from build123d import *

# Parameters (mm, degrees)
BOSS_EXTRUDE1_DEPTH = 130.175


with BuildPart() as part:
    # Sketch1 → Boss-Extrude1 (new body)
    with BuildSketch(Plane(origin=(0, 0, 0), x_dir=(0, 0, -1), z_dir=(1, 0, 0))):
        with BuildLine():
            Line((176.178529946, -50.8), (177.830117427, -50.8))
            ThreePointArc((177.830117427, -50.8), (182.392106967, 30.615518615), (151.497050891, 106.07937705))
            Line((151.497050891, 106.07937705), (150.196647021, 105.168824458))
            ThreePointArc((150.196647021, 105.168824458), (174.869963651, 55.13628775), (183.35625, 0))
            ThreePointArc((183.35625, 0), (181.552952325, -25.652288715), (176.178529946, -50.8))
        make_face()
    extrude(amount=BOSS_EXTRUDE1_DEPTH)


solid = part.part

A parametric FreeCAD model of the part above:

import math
import FreeCAD as App
import Part
import Sketcher

V = App.Vector
Q = App.Units.Quantity

doc = App.newDocument("Part")
params = doc.addObject("Spreadsheet::Sheet", "Params")
for row, (alias, value) in enumerate([
    ("sketch1_radius", "7.28125 in"),
    ("sketch1_radius2", "7.21875 in"),
    ("pad1_length", "5.125 in"),
], start=1):
    params.set(f"A{row}", alias)
    params.set(f"B{row}", "=" + value)
    params.setAlias(f"B{row}", alias)

body = doc.addObject("PartDesign::Body", "Body")

sketch1 = body.newObject("Sketcher::SketchObject", "Sketch")
sketch1.AttachmentSupport = (doc.getObject("YZ_Plane"), [""])
sketch1.MapMode = "FlatFace"
sketch1.addGeometry([
    Part.LineSegment(V(-50.8, -176.17853, 0), V(-50.8, -177.830117, 0)),
    Part.ArcOfCircle(Part.Circle(V(0, 0, 0), V(0, 0, 1), 184.94375), math.radians(-105.942833), math.radians(-55)),
    Part.LineSegment(V(106.079377, -151.497051, 0), V(105.168824, -150.196647, 0)),
    Part.ArcOfCircle(Part.Circle(V(0, 0, 0), V(0, 0, 1), 183.35625), math.radians(-90), math.radians(-55)),
    Part.ArcOfCircle(Part.Circle(V(0, 0, 0), V(0, 0, 1), 183.35625), math.radians(-106.084592), math.radians(-90)),
], False)
sketch1.addConstraint([
    Sketcher.Constraint("Coincident", 0, 2, 1, 1),
    Sketcher.Constraint("Coincident", 1, 2, 2, 1),
    Sketcher.Constraint("Coincident", 2, 2, 3, 2),
    Sketcher.Constraint("Tangent", 3, 1, 4, 2),
    Sketcher.Constraint("Coincident", 4, 1, 0, 1),
    Sketcher.Constraint("Vertical", 0),
    Sketcher.Constraint("Coincident", 1, 3, -1, 1),
    Sketcher.Constraint("Coincident", 3, 3, -1, 1),
    Sketcher.Constraint("Equal", 3, 4),
    Sketcher.Constraint("PointOnObject", 3, 1, -2),
    Sketcher.Constraint("DistanceX", 0, 2, -1, 1, Q("2 in")),
    Sketcher.Constraint("Angle", 2, Q("125 deg")),
    Sketcher.Constraint("Radius", 1, Q("7.28125 in")),
    Sketcher.Constraint("Radius", 3, Q("7.21875 in")),
    Sketcher.Constraint("DistanceY", 3, 1, 1, 2, Q("31.859199 mm")),
])
sketch1.setExpression("Constraints[12]", "Params.sketch1_radius")
sketch1.setExpression("Constraints[13]", "Params.sketch1_radius2")
pad1 = body.newObject("PartDesign::Pad", "Pad")
pad1.Profile = sketch1
pad1.setExpression("Length", "Params.pad1_length")

doc.recompute()
